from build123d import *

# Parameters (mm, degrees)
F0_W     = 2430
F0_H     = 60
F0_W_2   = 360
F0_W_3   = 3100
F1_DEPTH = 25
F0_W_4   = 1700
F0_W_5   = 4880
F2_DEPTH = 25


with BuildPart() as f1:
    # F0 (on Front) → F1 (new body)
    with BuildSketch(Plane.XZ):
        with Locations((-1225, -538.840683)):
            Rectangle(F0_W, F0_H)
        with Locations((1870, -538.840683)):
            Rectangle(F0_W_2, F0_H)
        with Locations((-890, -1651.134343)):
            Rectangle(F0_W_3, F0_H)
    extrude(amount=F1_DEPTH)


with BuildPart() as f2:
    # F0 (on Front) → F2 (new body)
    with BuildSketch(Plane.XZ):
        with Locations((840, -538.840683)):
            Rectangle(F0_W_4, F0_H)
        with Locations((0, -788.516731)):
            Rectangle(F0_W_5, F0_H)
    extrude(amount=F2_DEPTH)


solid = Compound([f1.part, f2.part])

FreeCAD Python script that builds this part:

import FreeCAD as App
import Part
import Sketcher


def add_polygon(sketch, points):
    """Adds a closed chain of lines whose ends are joined by coincident constraints."""
    first, n = sketch.GeometryCount, len(points)
    for a, b in zip(points, points[1:] + points[:1]):
        sketch.addGeometry(Part.LineSegment(App.Vector(*a, 0), App.Vector(*b, 0)), False)
    for i in range(n):
        sketch.addConstraint(Sketcher.Constraint("Coincident", first + i, 2, first + (i + 1) % n, 1))

doc = App.newDocument("Part")
body = doc.addObject("PartDesign::Body", "Body")
body.AllowCompound = True

# Sketch on XZ plane
sketch1 = doc.addObject("Sketcher::SketchObject", "Sketch")
body.addObject(sketch1)
sketch1.AttachmentSupport = (doc.XZ_Plane, [""])
sketch1.MapMode = "FlatFace"
add_polygon(sketch1, [(-2440, -508.840683), (-2440, -568.840683), (-10, -568.840683), (-10, -508.840683)])  # lines 0-3
add_polygon(sketch1, [(1690, -508.840683), (1690, -568.840683), (2050, -568.840683), (2050, -508.840683)])  # lines 4-7
add_polygon(sketch1, [(-2440, -1621.134343), (-2440, -1681.134343), (660, -1681.134343), (660, -1621.134343)])  # lines 8-11
sketch1.addConstraint([
    Sketcher.Constraint("Vertical", 0),
    Sketcher.Constraint("Horizontal", 1),
    Sketcher.Constraint("Vertical", 2),
    Sketcher.Constraint("Horizontal", 3),
    Sketcher.Constraint("Vertical", 4),
    Sketcher.Constraint("Horizontal", 5),
    Sketcher.Constraint("Vertical", 6),
    Sketcher.Constraint("Horizontal", 7),
    Sketcher.Constraint("Vertical", 8),
    Sketcher.Constraint("Horizontal", 9),
    Sketcher.Constraint("Vertical", 10),
    Sketcher.Constraint("Horizontal", 11),
    Sketcher.Constraint("Horizontal", 1, 2, 4, 2),
    Sketcher.Constraint("Horizontal", 3, 2, 6, 2),
    Sketcher.Constraint("Vertical", 3, 2, 8, 2),
    Sketcher.Constraint("Equal", 6, 8),
    Sketcher.Constraint("DistanceX", 1, 1, 1, 2, 2430.0),
    Sketcher.Constraint("DistanceX", 5, 1, 5, 2, 360.0),
    Sketcher.Constraint("DistanceX", 9, 1, 9, 2, 3100.0),
    Sketcher.Constraint("DistanceY", 0, 2, 0, 1, 60.0),
    Sketcher.Constraint("DistanceX", 0, 2, -1, 1, 2440.0),
    Sketcher.Constraint("DistanceX", -1, 1, 4, 2, 1690.0),
    Sketcher.Constraint("DistanceY", 8, 2, 0, 2, 1112.29366),
    Sketcher.Constraint("DistanceY", 0, 2, -1, 1, 568.840683),
])
pad1 = doc.addObject("PartDesign::Pad", "Pad")
body.addObject(pad1)
pad1.Profile = sketch1
pad1.Length = 25
body2 = doc.addObject("PartDesign::Body", "Body001")
body2.AllowCompound = True

# Sketch on XZ plane
sketch2 = doc.addObject("Sketcher::SketchObject", "Sketch001")
body2.addObject(sketch2)
sketch2.AttachmentSupport = (doc.getObject("XZ_Plane001"), [""])
sketch2.MapMode = "FlatFace"
add_polygon(sketch2, [(-10, -508.840683), (-10, -568.840683), (1690, -568.840683), (1690, -508.840683)])  # lines 0-3
add_polygon(sketch2, [(-2440, -758.516731), (-2440, -818.516731), (2440, -818.516731), (2440, -758.516731)])  # lines 4-7
sketch2.addConstraint([
    Sketcher.Constraint("Vertical", 0),
    Sketcher.Constraint("Horizontal", 1),
    Sketcher.Constraint("Vertical", 2),
    Sketcher.Constraint("Horizontal", 3),
    Sketcher.Constraint("Vertical", 4),
    Sketcher.Constraint("Horizontal", 5),
    Sketcher.Constraint("Vertical", 6),
    Sketcher.Constraint("Horizontal", 7),
    Sketcher.Constraint("Equal", 2, 4),
    Sketcher.Constraint("DistanceX", 1, 1, 1, 2, 1700.0),
    Sketcher.Constraint("DistanceX", 5, 1, 5, 2, 4880.0),
    Sketcher.Constraint("DistanceY", 0, 2, 0, 1, 60.0),
    Sketcher.Constraint("DistanceX", 0, 2, -1, 1, 10.0),
    Sketcher.Constraint("DistanceX", 4, 2, -1, 1, 2440.0),
    Sketcher.Constraint("DistanceY", 4, 2, -1, 1, 818.516731),
    Sketcher.Constraint("DistanceY", 4, 2, 0, 2, 249.676048),
])
pad2 = doc.addObject("PartDesign::Pad", "Pad001")
body2.addObject(pad2)
pad2.Profile = sketch2
pad2.Length = 25

doc.recompute()
